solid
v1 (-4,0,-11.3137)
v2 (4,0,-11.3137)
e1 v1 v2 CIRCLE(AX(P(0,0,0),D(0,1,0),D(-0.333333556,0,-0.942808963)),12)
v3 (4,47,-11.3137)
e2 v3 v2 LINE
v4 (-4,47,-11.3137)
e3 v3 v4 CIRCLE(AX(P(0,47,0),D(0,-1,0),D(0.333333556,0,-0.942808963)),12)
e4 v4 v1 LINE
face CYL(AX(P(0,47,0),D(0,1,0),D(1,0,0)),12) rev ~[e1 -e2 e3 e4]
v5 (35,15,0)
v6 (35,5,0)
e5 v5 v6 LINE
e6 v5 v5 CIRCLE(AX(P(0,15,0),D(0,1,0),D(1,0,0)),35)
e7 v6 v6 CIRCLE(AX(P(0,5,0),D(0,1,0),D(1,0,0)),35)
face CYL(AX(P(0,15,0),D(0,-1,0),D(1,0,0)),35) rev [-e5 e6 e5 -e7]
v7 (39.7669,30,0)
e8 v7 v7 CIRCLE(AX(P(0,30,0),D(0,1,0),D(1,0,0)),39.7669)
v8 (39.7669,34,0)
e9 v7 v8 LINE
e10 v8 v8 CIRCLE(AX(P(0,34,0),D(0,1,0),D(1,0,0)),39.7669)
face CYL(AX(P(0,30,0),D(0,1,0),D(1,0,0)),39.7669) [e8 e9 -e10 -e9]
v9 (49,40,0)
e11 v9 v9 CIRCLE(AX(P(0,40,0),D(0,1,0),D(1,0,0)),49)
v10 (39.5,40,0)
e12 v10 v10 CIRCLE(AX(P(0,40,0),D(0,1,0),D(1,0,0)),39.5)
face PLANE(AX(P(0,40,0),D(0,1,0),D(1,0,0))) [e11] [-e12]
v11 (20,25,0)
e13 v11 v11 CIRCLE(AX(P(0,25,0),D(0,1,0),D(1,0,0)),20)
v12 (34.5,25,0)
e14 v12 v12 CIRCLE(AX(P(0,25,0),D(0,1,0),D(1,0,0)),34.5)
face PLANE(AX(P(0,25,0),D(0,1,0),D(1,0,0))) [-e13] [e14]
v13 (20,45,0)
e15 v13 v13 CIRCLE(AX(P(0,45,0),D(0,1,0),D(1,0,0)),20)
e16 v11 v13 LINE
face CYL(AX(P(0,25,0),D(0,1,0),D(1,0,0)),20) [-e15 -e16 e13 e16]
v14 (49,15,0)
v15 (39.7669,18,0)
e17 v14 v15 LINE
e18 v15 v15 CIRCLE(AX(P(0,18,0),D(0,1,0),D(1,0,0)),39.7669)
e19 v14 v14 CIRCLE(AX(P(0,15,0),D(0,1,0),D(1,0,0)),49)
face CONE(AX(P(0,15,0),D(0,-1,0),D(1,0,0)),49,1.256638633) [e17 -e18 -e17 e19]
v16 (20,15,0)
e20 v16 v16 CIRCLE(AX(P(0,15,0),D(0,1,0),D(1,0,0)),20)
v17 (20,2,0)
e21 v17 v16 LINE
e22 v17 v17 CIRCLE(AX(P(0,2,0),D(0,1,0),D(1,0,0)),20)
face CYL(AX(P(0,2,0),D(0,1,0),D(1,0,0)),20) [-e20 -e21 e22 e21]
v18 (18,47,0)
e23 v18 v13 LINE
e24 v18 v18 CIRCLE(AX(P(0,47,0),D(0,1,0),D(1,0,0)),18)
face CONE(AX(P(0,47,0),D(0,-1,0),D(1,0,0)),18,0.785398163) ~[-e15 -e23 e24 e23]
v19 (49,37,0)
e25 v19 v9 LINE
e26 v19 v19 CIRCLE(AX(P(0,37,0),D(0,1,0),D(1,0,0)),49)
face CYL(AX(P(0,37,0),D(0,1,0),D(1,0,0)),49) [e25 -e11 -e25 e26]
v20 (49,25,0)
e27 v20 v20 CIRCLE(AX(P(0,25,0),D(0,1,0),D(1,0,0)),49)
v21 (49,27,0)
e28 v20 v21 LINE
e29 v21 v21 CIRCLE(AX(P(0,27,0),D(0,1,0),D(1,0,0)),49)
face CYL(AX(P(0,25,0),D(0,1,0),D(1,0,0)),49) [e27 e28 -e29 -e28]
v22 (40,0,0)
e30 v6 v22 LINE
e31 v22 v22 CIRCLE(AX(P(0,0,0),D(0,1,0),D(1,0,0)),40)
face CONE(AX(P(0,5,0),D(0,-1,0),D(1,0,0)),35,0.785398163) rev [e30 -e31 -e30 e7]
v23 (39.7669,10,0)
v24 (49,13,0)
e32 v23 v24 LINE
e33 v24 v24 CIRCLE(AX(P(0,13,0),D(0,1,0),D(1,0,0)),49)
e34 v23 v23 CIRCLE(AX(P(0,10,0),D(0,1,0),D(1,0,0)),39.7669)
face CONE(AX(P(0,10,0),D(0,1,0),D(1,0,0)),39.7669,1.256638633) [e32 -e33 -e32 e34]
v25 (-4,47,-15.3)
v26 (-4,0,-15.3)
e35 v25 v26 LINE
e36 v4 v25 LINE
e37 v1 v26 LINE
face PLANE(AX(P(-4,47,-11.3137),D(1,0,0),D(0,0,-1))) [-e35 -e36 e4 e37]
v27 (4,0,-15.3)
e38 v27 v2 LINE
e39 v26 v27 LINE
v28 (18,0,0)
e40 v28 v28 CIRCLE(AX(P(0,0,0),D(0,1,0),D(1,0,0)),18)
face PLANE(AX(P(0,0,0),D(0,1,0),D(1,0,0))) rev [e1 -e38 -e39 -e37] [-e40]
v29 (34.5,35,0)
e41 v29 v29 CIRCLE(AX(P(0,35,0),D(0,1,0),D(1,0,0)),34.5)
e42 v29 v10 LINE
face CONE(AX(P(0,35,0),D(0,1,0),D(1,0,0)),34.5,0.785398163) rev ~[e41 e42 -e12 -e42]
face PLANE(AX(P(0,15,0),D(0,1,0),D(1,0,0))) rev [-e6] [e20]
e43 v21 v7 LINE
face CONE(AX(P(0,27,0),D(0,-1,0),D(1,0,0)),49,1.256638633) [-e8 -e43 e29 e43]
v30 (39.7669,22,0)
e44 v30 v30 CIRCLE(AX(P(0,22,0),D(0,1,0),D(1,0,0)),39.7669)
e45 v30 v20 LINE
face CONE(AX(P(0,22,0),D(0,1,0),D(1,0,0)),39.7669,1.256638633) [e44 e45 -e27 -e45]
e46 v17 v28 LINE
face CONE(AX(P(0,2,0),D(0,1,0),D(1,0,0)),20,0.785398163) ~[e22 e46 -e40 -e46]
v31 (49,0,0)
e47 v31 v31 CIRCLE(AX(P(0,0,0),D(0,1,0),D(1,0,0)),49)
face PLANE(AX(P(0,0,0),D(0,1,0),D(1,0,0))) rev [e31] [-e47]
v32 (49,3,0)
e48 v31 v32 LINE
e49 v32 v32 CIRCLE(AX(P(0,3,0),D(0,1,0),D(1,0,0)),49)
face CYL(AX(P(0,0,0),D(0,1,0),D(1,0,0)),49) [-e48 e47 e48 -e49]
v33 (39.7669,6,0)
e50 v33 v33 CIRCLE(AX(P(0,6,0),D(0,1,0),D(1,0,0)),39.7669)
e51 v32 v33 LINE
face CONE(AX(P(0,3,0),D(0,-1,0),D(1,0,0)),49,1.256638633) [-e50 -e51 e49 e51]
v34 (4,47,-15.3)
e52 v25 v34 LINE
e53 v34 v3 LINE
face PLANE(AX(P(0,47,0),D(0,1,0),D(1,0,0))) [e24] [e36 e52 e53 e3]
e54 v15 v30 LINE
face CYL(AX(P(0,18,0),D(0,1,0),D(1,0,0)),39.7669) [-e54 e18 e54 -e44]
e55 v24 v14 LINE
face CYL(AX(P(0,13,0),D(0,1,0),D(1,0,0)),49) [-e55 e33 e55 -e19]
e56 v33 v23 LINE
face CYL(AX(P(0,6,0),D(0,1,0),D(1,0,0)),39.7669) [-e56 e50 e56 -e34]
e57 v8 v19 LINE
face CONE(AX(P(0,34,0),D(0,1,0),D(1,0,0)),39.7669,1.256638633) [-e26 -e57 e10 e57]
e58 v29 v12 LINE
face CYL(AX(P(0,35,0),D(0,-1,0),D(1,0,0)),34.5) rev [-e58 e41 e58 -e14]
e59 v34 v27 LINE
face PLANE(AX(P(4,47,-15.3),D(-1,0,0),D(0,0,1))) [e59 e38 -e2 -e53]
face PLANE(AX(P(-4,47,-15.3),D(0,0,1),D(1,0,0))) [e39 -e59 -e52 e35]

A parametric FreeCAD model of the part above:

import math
import FreeCAD as App
import Part
import Sketcher
from FreeCAD import Vector
Q = App.Units.Quantity


def add_polygon(sketch, points):
    """Adds a closed chain of lines whose ends are joined by coincident constraints."""
    first, n = sketch.GeometryCount, len(points)
    for a, b in zip(points, points[1:] + points[:1]):
        sketch.addGeometry(Part.LineSegment(App.Vector(*a, 0), App.Vector(*b, 0)), False)
    for i in range(n):
        sketch.addConstraint(Sketcher.Constraint("Coincident", first + i, 2, first + (i + 1) % n, 1))

doc = App.newDocument("Part")
body = doc.addObject("PartDesign::Body", "Body")

# Sketch on XY plane
sketch1 = body.newObject("Sketcher::SketchObject", "Sketch")
sketch1.AttachmentSupport = (doc.getObject("XY_Plane"), [""])
sketch1.MapMode = "FlatFace"
add_polygon(sketch1, [(0, 47), (0, 0), (18, 0), (20, 2), (20, 15), (35, 15), (35, 5), (40, 0), (49, 0), (49, 3), (39.7669, 6), (39.7669, 10), (49, 13), (49, 15), (39.7669, 18), (39.7669, 22), (49, 25), (49, 27), (39.7669, 30), (39.7669, 34), (49, 37), (49, 40), (39.5, 40), (34.5, 35), (34.5, 25), (20, 25), (20, 45), (18, 47)])  # lines 0-27
sketch1.addConstraint(Sketcher.Constraint("Vertical", 0))
sketch1.addConstraint(Sketcher.Constraint("Horizontal", 1))
sketch1.addConstraint(Sketcher.Constraint("Vertical", 3))
sketch1.addConstraint(Sketcher.Constraint("Horizontal", 4))
sketch1.addConstraint(Sketcher.Constraint("Vertical", 5))
sketch1.addConstraint(Sketcher.Constraint("Horizontal", 7))
sketch1.addConstraint(Sketcher.Constraint("Vertical", 8))
sketch1.addConstraint(Sketcher.Constraint("Vertical", 10))
sketch1.addConstraint(Sketcher.Constraint("Vertical", 12))
sketch1.addConstraint(Sketcher.Constraint("Vertical", 14))
sketch1.addConstraint(Sketcher.Constraint("Vertical", 16))
sketch1.addConstraint(Sketcher.Constraint("Vertical", 18))
sketch1.addConstraint(Sketcher.Constraint("Vertical", 20))
sketch1.addConstraint(Sketcher.Constraint("Horizontal", 21))
sketch1.addConstraint(Sketcher.Constraint("Vertical", 23))
sketch1.addConstraint(Sketcher.Constraint("Horizontal", 24))
sketch1.addConstraint(Sketcher.Constraint("Vertical", 25))
sketch1.addConstraint(Sketcher.Constraint("Horizontal", 27))
sketch1.addConstraint(Sketcher.Constraint("Coincident", 0, 2, -1, 1))
sketch1.addConstraint(Sketcher.Constraint("PointOnObject", 6, 2, -1))
sketch1.addConstraint(Sketcher.Constraint("Perpendicular", 2, 6))
sketch1.addConstraint(Sketcher.Constraint("Parallel", 9, 13))
sketch1.addConstraint(Sketcher.Constraint("Parallel", 11, 15))
sketch1.addConstraint(Sketcher.Constraint("Parallel", 13, 17))
sketch1.addConstraint(Sketcher.Constraint("Parallel", 15, 19))
sketch1.addConstraint(Sketcher.Constraint("Perpendicular", 6, 22))
sketch1.addConstraint(Sketcher.Constraint("Perpendicular", 22, 26))
sketch1.addConstraint(Sketcher.Constraint("Horizontal", 4, 2, 12, 2))
sketch1.addConstraint(Sketcher.Constraint("Horizontal", 15, 2, 23, 2))
sketch1.addConstraint(Sketcher.Constraint("Vertical", 8, 2, 11, 2))
sketch1.addConstraint(Sketcher.Constraint("Vertical", 10, 2, 13, 2))
sketch1.addConstraint(Sketcher.Constraint("Vertical", 12, 2, 15, 2))
sketch1.addConstraint(Sketcher.Constraint("Vertical", 14, 2, 17, 2))
sketch1.addConstraint(Sketcher.Constraint("Vertical", 16, 2, 19, 2))
sketch1.addConstraint(Sketcher.Constraint("Vertical", 3, 2, 24, 2))
sketch1.addConstraint(Sketcher.Constraint("Vertical", 1, 2, 26, 2))
sketch1.addConstraint(Sketcher.Constraint("Equal", 10, 14))
sketch1.addConstraint(Sketcher.Constraint("Equal", 12, 16))
sketch1.addConstraint(Sketcher.Constraint("Equal", 14, 18))
sketch1.addConstraint(Sketcher.Constraint("Equal", 8, 20))
sketch1.addConstraint(Sketcher.Constraint("Equal", 5, 23))
sketch1.addConstraint(Sketcher.Constraint("Equal", 9, 11))
sketch1.addConstraint(Sketcher.Constraint("Equal", 6, 22))
sketch1.addConstraint(Sketcher.Constraint("DistanceX", 1, 1, 1, 2, 18.0))
sketch1.addConstraint(Sketcher.Constraint("DistanceX", 4, 1, 4, 2, 15.0))
sketch1.addConstraint(Sketcher.Constraint("DistanceY", 0, 2, 0, 1, 47.0))
sketch1.addConstraint(Sketcher.Constraint("DistanceY", 5, 2, 5, 1, 10.0))
sketch1.addConstraint(Sketcher.Constraint("DistanceY", 10, 1, 10, 2, 4.0))
sketch1.addConstraint(Sketcher.Constraint("DistanceY", 12, 1, 12, 2, 2.0))
sketch1.addConstraint(Sketcher.Constraint("Angle", 11, Q("18 deg")))
sketch1.addConstraint(Sketcher.Constraint("DistanceX", 21, 2, 21, 1, 9.5))
sketch1.addConstraint(Sketcher.Constraint("DistanceY", -1, 1, 2, 2, 2.0))
sketch1.addConstraint(Sketcher.Constraint("DistanceY", -1, 1, 3, 2, 15.0))
sketch1.addConstraint(Sketcher.Constraint("DistanceY", -1, 1, 10, 2, 10.0))
sketch1.addConstraint(Sketcher.Constraint("DistanceX", 7, 1, 7, 2, 9.0))
revolution = body.newObject("PartDesign::Revolution", "Revolution")
revolution.Profile = sketch1
revolution.ReferenceAxis = (sketch1, ["V_Axis"])
revolution.Angle = 360

# Sketch on XZ plane
sketch2 = body.newObject("Sketcher::SketchObject", "Sketch001")
sketch2.AttachmentSupport = (doc.getObject("XZ_Plane"), [""])
sketch2.MapMode = "FlatFace"
sketch2.AttachmentOffset = App.Placement(Vector(0, 0, -47), App.Rotation())
sketch2.addGeometry(Part.ArcOfCircle(Part.Circle(Vector(0, 0, 0), Vector(0, 0, 1), 12), math.radians(-70.528766), math.radians(250.528766)), False)
sketch2.addGeometry(Part.LineSegment(Vector(4, -11.3137, 0), Vector(4, -15.3, 0)), False)
sketch2.addGeometry(Part.LineSegment(Vector(4, -15.3, 0), Vector(-4, -15.3, 0)), False)
sketch2.addGeometry(Part.LineSegment(Vector(-4, -15.3, 0), Vector(-4, -11.3137, 0)), False)
sketch2.addConstraint(Sketcher.Constraint("Coincident", 0, 1, 1, 1))
sketch2.addConstraint(Sketcher.Constraint("Coincident", 1, 2, 2, 1))
sketch2.addConstraint(Sketcher.Constraint("Coincident", 2, 2, 3, 1))
sketch2.addConstraint(Sketcher.Constraint("Coincident", 3, 2, 0, 2))
sketch2.addConstraint(Sketcher.Constraint("Vertical", 1))
sketch2.addConstraint(Sketcher.Constraint("Horizontal", 2))
sketch2.addConstraint(Sketcher.Constraint("Vertical", 3))
sketch2.addConstraint(Sketcher.Constraint("Coincident", 0, 3, -1, 1))
sketch2.addConstraint(Sketcher.Constraint("Horizontal", 0, 1, 3, 2))
sketch2.addConstraint(Sketcher.Constraint("Radius", 0, 12.0))
sketch2.addConstraint(Sketcher.Constraint("DistanceX", 2, 2, 2, 1, 8.0))
sketch2.addConstraint(Sketcher.Constraint("DistanceY", 1, 2, -1, 1, 15.3))
pocket1 = body.newObject("PartDesign::Pocket", "Pocket")
pocket1.Profile = sketch2
pocket1.Length = 47
pocket1.Reversed = True

doc.recompute()
